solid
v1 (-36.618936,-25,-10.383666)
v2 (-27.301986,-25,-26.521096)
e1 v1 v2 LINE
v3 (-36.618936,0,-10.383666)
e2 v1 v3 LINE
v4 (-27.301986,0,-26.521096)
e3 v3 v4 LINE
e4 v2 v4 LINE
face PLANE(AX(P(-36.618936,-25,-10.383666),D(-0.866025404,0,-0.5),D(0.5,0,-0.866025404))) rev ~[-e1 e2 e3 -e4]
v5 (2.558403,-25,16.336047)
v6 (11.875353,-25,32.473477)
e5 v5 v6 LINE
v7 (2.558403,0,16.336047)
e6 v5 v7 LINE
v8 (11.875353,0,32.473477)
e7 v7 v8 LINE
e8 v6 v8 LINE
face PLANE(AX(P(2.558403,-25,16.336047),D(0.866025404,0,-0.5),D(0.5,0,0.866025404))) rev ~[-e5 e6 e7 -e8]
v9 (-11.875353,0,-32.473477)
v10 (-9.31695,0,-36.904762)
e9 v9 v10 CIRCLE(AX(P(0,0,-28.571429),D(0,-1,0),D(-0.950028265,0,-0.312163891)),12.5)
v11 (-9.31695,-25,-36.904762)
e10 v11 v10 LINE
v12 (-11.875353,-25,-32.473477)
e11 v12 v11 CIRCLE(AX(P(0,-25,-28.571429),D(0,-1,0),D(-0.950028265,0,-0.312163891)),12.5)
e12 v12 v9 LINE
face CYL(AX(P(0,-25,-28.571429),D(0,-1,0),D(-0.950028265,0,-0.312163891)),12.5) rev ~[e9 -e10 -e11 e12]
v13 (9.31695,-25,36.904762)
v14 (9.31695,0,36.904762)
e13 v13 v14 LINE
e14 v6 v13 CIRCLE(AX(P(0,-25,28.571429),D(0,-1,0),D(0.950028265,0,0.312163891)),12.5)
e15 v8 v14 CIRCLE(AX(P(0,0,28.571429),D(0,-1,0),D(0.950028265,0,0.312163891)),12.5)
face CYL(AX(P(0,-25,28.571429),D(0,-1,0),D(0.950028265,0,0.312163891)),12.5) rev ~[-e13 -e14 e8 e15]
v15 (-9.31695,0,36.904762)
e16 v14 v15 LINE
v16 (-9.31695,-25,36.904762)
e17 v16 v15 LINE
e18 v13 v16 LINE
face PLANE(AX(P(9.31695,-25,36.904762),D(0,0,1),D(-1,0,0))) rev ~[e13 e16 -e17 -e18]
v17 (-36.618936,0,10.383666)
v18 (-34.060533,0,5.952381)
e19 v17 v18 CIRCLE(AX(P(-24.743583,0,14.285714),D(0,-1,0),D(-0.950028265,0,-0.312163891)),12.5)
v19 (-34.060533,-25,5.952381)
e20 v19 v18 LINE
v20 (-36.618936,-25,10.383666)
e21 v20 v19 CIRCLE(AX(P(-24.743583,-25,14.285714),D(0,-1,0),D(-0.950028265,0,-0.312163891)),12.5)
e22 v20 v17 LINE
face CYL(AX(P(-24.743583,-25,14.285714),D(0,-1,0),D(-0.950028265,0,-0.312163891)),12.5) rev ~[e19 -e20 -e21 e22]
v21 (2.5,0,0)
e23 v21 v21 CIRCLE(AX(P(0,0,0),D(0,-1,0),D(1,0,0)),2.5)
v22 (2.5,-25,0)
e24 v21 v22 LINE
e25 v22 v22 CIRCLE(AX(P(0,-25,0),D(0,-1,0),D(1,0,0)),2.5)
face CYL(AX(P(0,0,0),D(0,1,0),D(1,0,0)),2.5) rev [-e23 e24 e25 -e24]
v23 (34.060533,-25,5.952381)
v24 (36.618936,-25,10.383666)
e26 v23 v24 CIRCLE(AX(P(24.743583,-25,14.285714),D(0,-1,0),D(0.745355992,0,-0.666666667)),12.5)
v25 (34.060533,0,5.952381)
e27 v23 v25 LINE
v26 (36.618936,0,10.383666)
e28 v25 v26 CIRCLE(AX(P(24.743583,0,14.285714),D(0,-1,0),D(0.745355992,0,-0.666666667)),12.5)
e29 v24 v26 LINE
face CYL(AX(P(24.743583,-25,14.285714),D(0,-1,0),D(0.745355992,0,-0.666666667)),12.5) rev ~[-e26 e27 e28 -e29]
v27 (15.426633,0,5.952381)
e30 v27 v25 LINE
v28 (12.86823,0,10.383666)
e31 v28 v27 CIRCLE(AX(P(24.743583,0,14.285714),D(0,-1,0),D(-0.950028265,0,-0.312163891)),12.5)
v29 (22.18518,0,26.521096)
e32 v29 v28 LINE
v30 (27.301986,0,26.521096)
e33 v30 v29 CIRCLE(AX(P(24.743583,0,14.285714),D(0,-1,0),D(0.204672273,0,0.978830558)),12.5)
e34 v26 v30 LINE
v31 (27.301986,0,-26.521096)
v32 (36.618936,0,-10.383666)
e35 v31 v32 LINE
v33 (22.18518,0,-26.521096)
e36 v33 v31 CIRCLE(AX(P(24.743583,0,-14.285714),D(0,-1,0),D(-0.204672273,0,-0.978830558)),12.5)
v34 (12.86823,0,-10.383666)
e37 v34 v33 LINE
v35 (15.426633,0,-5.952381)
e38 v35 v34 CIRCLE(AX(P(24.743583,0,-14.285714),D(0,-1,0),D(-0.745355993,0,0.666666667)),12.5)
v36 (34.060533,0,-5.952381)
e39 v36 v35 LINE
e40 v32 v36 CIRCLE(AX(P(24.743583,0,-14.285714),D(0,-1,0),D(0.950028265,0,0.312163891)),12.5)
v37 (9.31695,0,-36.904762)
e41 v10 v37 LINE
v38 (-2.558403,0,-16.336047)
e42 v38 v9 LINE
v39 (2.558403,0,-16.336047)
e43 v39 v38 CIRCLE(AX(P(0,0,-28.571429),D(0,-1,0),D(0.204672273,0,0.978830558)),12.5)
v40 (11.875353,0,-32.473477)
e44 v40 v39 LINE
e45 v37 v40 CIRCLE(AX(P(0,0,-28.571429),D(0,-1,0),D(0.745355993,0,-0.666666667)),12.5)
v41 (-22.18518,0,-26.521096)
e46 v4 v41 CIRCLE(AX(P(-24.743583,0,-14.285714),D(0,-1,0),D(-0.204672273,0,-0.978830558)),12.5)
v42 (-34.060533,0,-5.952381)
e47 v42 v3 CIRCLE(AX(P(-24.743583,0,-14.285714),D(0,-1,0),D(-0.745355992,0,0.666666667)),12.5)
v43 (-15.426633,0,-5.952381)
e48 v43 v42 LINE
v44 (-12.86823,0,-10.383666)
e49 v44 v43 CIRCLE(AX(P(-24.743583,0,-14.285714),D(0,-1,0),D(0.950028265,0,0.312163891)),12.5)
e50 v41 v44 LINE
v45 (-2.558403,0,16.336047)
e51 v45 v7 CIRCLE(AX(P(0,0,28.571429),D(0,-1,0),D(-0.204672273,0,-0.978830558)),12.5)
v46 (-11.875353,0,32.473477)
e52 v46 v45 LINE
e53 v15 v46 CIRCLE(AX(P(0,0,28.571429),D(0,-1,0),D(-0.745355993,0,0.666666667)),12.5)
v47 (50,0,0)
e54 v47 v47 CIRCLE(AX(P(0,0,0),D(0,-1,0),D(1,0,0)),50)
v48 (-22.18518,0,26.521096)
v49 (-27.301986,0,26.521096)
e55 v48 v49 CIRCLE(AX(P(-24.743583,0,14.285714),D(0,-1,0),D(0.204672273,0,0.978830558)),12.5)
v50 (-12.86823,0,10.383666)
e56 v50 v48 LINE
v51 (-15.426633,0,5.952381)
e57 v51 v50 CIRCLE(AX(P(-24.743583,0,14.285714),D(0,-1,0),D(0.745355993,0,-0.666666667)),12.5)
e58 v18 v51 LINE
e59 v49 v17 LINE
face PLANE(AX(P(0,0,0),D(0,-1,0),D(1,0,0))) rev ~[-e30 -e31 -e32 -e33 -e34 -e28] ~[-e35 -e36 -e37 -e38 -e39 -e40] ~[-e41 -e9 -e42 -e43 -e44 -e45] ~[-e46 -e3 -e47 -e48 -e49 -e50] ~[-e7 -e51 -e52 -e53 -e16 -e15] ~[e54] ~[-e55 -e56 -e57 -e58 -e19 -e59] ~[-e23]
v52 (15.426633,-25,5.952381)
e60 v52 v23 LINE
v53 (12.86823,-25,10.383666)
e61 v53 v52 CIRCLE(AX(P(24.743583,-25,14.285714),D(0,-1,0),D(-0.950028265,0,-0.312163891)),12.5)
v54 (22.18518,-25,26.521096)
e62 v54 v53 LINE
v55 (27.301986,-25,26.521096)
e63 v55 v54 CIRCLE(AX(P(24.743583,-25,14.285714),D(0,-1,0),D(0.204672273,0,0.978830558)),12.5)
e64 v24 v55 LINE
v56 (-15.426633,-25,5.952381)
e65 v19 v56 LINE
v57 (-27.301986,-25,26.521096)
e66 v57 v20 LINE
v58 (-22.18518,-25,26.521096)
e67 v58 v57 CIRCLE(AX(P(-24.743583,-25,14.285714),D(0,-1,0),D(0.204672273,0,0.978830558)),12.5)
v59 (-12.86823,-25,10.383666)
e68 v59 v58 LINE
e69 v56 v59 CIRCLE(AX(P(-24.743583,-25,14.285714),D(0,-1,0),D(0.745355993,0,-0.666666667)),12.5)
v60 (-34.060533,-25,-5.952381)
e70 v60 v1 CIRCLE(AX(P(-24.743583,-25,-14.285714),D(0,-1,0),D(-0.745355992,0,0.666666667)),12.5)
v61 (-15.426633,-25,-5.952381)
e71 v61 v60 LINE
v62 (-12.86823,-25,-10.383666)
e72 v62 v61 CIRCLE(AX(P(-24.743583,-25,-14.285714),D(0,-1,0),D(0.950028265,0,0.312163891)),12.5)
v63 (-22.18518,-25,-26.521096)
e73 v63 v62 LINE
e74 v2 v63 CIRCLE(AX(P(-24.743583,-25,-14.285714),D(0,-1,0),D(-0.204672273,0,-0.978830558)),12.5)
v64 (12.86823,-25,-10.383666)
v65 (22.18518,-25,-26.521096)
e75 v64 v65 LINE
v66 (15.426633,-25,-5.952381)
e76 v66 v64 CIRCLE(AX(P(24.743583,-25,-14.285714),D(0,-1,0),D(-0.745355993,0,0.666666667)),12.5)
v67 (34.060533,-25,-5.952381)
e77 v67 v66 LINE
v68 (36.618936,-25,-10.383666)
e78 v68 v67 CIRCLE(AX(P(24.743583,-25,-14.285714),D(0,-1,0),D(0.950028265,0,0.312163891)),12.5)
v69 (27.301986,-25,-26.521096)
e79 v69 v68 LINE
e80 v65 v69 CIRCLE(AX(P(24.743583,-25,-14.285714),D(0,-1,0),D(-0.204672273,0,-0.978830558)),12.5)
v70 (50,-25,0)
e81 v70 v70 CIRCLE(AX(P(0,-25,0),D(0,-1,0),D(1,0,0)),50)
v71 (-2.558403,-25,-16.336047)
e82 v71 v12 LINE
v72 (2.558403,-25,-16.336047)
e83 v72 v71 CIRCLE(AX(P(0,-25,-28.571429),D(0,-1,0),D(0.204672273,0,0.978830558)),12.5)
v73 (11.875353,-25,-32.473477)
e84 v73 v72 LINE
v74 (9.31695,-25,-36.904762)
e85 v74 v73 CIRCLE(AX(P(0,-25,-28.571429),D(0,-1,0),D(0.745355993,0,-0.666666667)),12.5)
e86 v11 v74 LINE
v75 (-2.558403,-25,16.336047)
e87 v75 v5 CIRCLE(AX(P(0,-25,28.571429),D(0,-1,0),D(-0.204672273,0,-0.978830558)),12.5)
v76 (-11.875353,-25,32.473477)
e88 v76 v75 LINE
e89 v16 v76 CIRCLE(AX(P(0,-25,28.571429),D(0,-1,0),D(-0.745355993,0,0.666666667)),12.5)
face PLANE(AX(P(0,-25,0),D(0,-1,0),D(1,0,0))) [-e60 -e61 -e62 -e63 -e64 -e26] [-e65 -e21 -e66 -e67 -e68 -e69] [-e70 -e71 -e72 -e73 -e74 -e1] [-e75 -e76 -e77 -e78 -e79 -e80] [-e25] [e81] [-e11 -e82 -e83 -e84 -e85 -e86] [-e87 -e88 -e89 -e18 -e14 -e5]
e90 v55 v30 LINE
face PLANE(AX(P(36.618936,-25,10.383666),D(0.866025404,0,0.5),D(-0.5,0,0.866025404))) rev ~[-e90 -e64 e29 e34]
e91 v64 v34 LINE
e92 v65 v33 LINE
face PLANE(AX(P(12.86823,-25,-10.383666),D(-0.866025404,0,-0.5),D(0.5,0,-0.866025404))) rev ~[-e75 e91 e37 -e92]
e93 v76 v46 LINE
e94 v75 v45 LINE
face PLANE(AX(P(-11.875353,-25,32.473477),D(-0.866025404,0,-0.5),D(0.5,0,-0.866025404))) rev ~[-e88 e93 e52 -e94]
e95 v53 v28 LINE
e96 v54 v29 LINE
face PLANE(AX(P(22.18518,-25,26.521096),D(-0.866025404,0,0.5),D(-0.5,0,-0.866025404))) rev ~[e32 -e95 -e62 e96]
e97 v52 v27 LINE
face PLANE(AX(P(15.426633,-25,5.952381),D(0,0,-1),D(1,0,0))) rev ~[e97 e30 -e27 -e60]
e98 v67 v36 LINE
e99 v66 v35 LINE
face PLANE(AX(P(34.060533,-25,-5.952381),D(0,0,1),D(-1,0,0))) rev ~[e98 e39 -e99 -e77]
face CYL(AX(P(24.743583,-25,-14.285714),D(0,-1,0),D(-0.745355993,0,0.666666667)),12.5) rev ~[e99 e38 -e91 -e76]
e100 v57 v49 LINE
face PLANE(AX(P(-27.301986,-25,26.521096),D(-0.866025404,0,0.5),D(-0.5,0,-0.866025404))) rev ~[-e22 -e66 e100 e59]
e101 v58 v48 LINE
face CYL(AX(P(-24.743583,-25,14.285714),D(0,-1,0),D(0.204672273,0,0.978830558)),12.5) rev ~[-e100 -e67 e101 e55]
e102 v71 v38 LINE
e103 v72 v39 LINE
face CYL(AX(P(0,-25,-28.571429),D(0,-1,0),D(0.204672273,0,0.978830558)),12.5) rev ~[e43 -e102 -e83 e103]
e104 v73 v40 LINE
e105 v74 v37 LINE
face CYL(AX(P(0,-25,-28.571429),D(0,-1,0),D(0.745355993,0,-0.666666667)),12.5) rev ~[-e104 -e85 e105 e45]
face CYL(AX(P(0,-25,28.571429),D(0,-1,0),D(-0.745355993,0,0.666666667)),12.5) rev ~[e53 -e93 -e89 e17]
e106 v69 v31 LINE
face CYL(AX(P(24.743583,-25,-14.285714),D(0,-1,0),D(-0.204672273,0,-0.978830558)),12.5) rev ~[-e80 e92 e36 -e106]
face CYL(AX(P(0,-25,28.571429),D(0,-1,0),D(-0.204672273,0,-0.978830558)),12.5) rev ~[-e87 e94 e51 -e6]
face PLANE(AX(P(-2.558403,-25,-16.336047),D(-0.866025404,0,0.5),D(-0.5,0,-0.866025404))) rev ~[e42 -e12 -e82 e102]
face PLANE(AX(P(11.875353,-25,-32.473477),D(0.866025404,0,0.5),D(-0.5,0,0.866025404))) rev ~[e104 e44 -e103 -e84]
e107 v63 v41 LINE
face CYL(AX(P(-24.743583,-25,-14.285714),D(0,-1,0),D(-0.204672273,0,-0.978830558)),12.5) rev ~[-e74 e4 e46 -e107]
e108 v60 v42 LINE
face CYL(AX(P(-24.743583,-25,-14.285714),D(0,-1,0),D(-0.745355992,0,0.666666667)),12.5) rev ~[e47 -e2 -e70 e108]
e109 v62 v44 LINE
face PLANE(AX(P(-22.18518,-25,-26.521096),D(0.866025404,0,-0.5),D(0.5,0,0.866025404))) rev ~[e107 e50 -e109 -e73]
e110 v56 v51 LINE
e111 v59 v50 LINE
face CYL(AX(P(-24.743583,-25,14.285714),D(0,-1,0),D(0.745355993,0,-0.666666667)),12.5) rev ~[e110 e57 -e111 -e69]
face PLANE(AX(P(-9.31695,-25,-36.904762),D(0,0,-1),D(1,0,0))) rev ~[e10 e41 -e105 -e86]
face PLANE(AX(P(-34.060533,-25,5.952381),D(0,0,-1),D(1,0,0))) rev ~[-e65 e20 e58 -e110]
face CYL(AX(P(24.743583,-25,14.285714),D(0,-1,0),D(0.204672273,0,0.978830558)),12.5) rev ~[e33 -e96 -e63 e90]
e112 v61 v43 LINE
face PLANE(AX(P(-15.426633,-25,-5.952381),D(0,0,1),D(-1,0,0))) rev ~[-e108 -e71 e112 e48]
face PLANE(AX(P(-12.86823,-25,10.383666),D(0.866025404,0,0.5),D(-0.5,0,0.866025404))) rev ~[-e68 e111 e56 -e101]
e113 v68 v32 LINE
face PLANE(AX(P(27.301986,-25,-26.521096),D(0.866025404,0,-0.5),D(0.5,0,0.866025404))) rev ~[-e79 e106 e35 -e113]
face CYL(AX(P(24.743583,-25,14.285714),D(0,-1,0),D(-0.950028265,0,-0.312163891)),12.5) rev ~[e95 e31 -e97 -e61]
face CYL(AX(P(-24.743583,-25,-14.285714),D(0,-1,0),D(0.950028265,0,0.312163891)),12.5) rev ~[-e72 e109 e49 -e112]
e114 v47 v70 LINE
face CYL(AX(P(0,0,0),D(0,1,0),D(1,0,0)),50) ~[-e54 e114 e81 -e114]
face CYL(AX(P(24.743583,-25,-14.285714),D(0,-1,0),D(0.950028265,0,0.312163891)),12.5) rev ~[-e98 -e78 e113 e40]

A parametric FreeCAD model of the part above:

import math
import FreeCAD as App
import Part
import Sketcher
from FreeCAD import Vector
Q = App.Units.Quantity

doc = App.newDocument("Part")
body = doc.addObject("PartDesign::Body", "Body")

# Sketch on XZ plane
sketch1 = body.newObject("Sketcher::SketchObject", "Sketch")
sketch1.AttachmentSupport = (doc.getObject("XZ_Plane"), [""])
sketch1.MapMode = "FlatFace"
sketch1.addGeometry([
    Part.Circle(Vector(0, 0, 0), Vector(0, 0, 1), 50),
    Part.Circle(Vector(0, 0, 0), Vector(0, 0, 1), 2.5),
], False)
sketch1.addConstraint([
    Sketcher.Constraint("Coincident", 0, 3, -1, 1),
    Sketcher.Constraint("Coincident", 1, 3, -1, 1),
    Sketcher.Constraint("Diameter", 0, Q("100 mm")),
    Sketcher.Constraint("Diameter", 1, Q("5 mm")),
])
pad1 = body.newObject("PartDesign::Pad", "Pad")
pad1.Profile = sketch1
pad1.Length = 25

# Sketch on XZ plane
sketch2 = body.newObject("Sketcher::SketchObject", "Sketch001")
sketch2.AttachmentSupport = (doc.getObject("XZ_Plane"), [""])
sketch2.MapMode = "FlatFace"
sketch2.AttachmentOffset = App.Placement(Vector(0, 0, 25), App.Rotation())
sketch2.addGeometry([
    Part.LineSegment(Vector(3, 16, 0), Vector(12, 32, 0)),  # 0
    Part.ArcOfCircle(Part.Circle(Vector(0, 29, 0), Vector(0, 0, 1), 13), math.radians(18), math.radians(42)),  # 1
    Part.LineSegment(Vector(9, 37, 0), Vector(-9, 37, 0)),  # 2
    Part.ArcOfCircle(Part.Circle(Vector(0, 29, 0), Vector(0, 0, 1), 13), math.radians(138), math.radians(162)),  # 3
    Part.LineSegment(Vector(-12, 32, 0), Vector(-3, 16, 0)),  # 4
    Part.ArcOfCircle(Part.Circle(Vector(0, 29, 0), Vector(0, 0, 1), 12), math.radians(-102), math.radians(-78)),  # 5
    Part.LineSegment(Vector(37, 10, 0), Vector(27, 27, 0)),  # 6
    Part.ArcOfCircle(Part.Circle(Vector(25, 14, 0), Vector(0, 0, 1), 13), math.radians(78), math.radians(102)),  # 7
    Part.LineSegment(Vector(22, 27, 0), Vector(13, 10, 0)),  # 8
    Part.ArcOfCircle(Part.Circle(Vector(25, 14, 0), Vector(0, 0, 1), 12), math.radians(-162), math.radians(-138)),  # 9
    Part.LineSegment(Vector(15, 6, 0), Vector(34, 6, 0)),  # 10
    Part.ArcOfCircle(Part.Circle(Vector(25, 14, 0), Vector(0, 0, 1), 12), math.radians(-42), math.radians(-18)),  # 11
    Part.LineSegment(Vector(-27, 27, 0), Vector(-37, 10, 0)),  # 12
    Part.ArcOfCircle(Part.Circle(Vector(-25, 14, 0), Vector(0, 0, 1), 12), math.radians(-162), math.radians(-138)),  # 13
    Part.LineSegment(Vector(-34, 6, 0), Vector(-15, 6, 0)),  # 14
    Part.ArcOfCircle(Part.Circle(Vector(-25, 14, 0), Vector(0, 0, 1), 12), math.radians(-42), math.radians(-18)),  # 15
    Part.LineSegment(Vector(-13, 10, 0), Vector(-22, 27, 0)),  # 16
    Part.ArcOfCircle(Part.Circle(Vector(-25, 14, 0), Vector(0, 0, 1), 13), math.radians(78), math.radians(102)),  # 17
    Part.LineSegment(Vector(-22, -27, 0), Vector(-13, -10, 0)),  # 18
    Part.ArcOfCircle(Part.Circle(Vector(-25, -14, 0), Vector(0, 0, 1), 12), math.radians(18), math.radians(42)),  # 19
    Part.LineSegment(Vector(-15, -6, 0), Vector(-34, -6, 0)),  # 20
    Part.ArcOfCircle(Part.Circle(Vector(-25, -14, 0), Vector(0, 0, 1), 12), math.radians(138), math.radians(162)),  # 21
    Part.LineSegment(Vector(-37, -10, 0), Vector(-27, -27, 0)),  # 22
    Part.ArcOfCircle(Part.Circle(Vector(-25, -14, 0), Vector(0, 0, 1), 13), math.radians(-102), math.radians(-78)),  # 23
    Part.LineSegment(Vector(-9, -37, 0), Vector(9, -37, 0)),  # 24
    Part.ArcOfCircle(Part.Circle(Vector(0, -29, 0), Vector(0, 0, 1), 13), math.radians(-42), math.radians(-18)),  # 25
    Part.LineSegment(Vector(12, -32, 0), Vector(3, -16, 0)),  # 26
    Part.ArcOfCircle(Part.Circle(Vector(0, -29, 0), Vector(0, 0, 1), 12), math.radians(78), math.radians(102)),  # 27
    Part.LineSegment(Vector(-3, -16, 0), Vector(-12, -32, 0)),  # 28
    Part.ArcOfCircle(Part.Circle(Vector(0, -29, 0), Vector(0, 0, 1), 13), math.radians(-162), math.radians(-138)),  # 29
    Part.LineSegment(Vector(34, -6, 0), Vector(15, -6, 0)),  # 30
    Part.ArcOfCircle(Part.Circle(Vector(25, -14, 0), Vector(0, 0, 1), 12), math.radians(138), math.radians(162)),  # 31
    Part.LineSegment(Vector(13, -10, 0), Vector(22, -27, 0)),  # 32
    Part.ArcOfCircle(Part.Circle(Vector(25, -14, 0), Vector(0, 0, 1), 13), math.radians(-102), math.radians(-78)),  # 33
    Part.LineSegment(Vector(27, -27, 0), Vector(37, -10, 0)),  # 34
    Part.ArcOfCircle(Part.Circle(Vector(25, -14, 0), Vector(0, 0, 1), 12), math.radians(18), math.radians(42)),  # 35
], False)
sketch2.addConstraint([
    Sketcher.Constraint("Coincident", 0, 2, 1, 1),
    Sketcher.Constraint("Coincident", 1, 2, 2, 1),
    Sketcher.Constraint("Coincident", 2, 2, 3, 1),
    Sketcher.Constraint("Coincident", 3, 2, 4, 1),
    Sketcher.Constraint("Coincident", 4, 2, 5, 1),
    Sketcher.Constraint("Coincident", 5, 2, 0, 1),
    Sketcher.Constraint("Coincident", 6, 2, 7, 1),
    Sketcher.Constraint("Coincident", 7, 2, 8, 1),
    Sketcher.Constraint("Coincident", 8, 2, 9, 1),
    Sketcher.Constraint("Coincident", 9, 2, 10, 1),
    Sketcher.Constraint("Coincident", 10, 2, 11, 1),
    Sketcher.Constraint("Coincident", 11, 2, 6, 1),
    Sketcher.Constraint("Coincident", 12, 2, 13, 1),
    Sketcher.Constraint("Coincident", 13, 2, 14, 1),
    Sketcher.Constraint("Coincident", 14, 2, 15, 1),
    Sketcher.Constraint("Coincident", 15, 2, 16, 1),
    Sketcher.Constraint("Coincident", 16, 2, 17, 1),
    Sketcher.Constraint("Coincident", 17, 2, 12, 1),
    Sketcher.Constraint("Coincident", 18, 2, 19, 1),
    Sketcher.Constraint("Coincident", 19, 2, 20, 1),
    Sketcher.Constraint("Coincident", 20, 2, 21, 1),
    Sketcher.Constraint("Coincident", 21, 2, 22, 1),
    Sketcher.Constraint("Coincident", 22, 2, 23, 1),
    Sketcher.Constraint("Coincident", 23, 2, 18, 1),
    Sketcher.Constraint("Coincident", 24, 2, 25, 1),
    Sketcher.Constraint("Coincident", 25, 2, 26, 1),
    Sketcher.Constraint("Coincident", 26, 2, 27, 1),
    Sketcher.Constraint("Coincident", 27, 2, 28, 1),
    Sketcher.Constraint("Coincident", 28, 2, 29, 1),
    Sketcher.Constraint("Coincident", 29, 2, 24, 1),
    Sketcher.Constraint("Coincident", 30, 2, 31, 1),
    Sketcher.Constraint("Coincident", 31, 2, 32, 1),
    Sketcher.Constraint("Coincident", 32, 2, 33, 1),
    Sketcher.Constraint("Coincident", 33, 2, 34, 1),
    Sketcher.Constraint("Coincident", 34, 2, 35, 1),
    Sketcher.Constraint("Coincident", 35, 2, 30, 1),
    Sketcher.Constraint("Horizontal", 2),
    Sketcher.Constraint("Horizontal", 10),
    Sketcher.Constraint("Horizontal", 14),
    Sketcher.Constraint("Horizontal", 20),
    Sketcher.Constraint("Horizontal", 24),
    Sketcher.Constraint("Horizontal", 30),
    Sketcher.Constraint("Coincident", 3, 3, 1, 3),
    Sketcher.Constraint("Coincident", 5, 3, 1, 3),
    Sketcher.Constraint("Coincident", 9, 3, 7, 3),
    Sketcher.Constraint("Coincident", 11, 3, 7, 3),
    Sketcher.Constraint("Coincident", 15, 3, 13, 3),
    Sketcher.Constraint("Coincident", 17, 3, 13, 3),
    Sketcher.Constraint("Coincident", 21, 3, 19, 3),
    Sketcher.Constraint("Coincident", 23, 3, 19, 3),
    Sketcher.Constraint("Coincident", 27, 3, 25, 3),
    Sketcher.Constraint("Coincident", 29, 3, 25, 3),
    Sketcher.Constraint("Coincident", 33, 3, 31, 3),
    Sketcher.Constraint("Coincident", 35, 3, 31, 3),
    Sketcher.Constraint("Equal", 1, 3),
    Sketcher.Constraint("Equal", 3, 5),
    Sketcher.Constraint("Equal", 5, 7),
    Sketcher.Constraint("Equal", 7, 9),
    Sketcher.Constraint("Equal", 9, 11),
    Sketcher.Constraint("Equal", 11, 13),
    Sketcher.Constraint("Equal", 13, 15),
    Sketcher.Constraint("Equal", 15, 17),
    Sketcher.Constraint("Equal", 17, 19),
    Sketcher.Constraint("Equal", 19, 21),
    Sketcher.Constraint("Equal", 21, 23),
    Sketcher.Constraint("Equal", 23, 25),
    Sketcher.Constraint("Equal", 25, 27),
    Sketcher.Constraint("Equal", 27, 29),
    Sketcher.Constraint("Equal", 29, 31),
    Sketcher.Constraint("Equal", 31, 33),
    Sketcher.Constraint("Equal", 33, 35),
    Sketcher.Constraint("Symmetric", 7, 3, 19, 3, -1, 1),
    Sketcher.Constraint("Symmetric", 1, 3, 25, 3, -1, 1),
    Sketcher.Constraint("Symmetric", 13, 3, 31, 3, -1, 1),
    Sketcher.Constraint("Symmetric", 7, 3, 13, 3, -2),
    Sketcher.Constraint("Symmetric", 0, 2, 3, 2, -2),
    Sketcher.Constraint("Parallel", 4, 6),
    Sketcher.Constraint("Parallel", 0, 8),
    Sketcher.Constraint("Parallel", 8, 12),
    Sketcher.Constraint("Parallel", 6, 16),
    Sketcher.Constraint("Parallel", 12, 18),
    Sketcher.Constraint("Parallel", 16, 22),
    Sketcher.Constraint("Parallel", 22, 26),
    Sketcher.Constraint("Parallel", 18, 28),
    Sketcher.Constraint("Parallel", 26, 32),
    Sketcher.Constraint("Parallel", 28, 34),
    Sketcher.Constraint("Horizontal", 4, 2, 5, 2),
    Sketcher.Constraint("Horizontal", 6, 2, 7, 2),
    Sketcher.Constraint("Horizontal", 11, 2, 12, 2),
    Sketcher.Constraint("Horizontal", 10, 2, 13, 2),
    Sketcher.Constraint("Horizontal", 12, 2, 15, 2),
    Sketcher.Constraint("Horizontal", 18, 2, 21, 2),
    Sketcher.Constraint("Horizontal", 26, 2, 27, 2),
    Sketcher.Constraint("Horizontal", 20, 2, 30, 2),
    Sketcher.Constraint("Horizontal", 21, 2, 31, 2),
    Sketcher.Constraint("Horizontal", 32, 2, 33, 2),
    Sketcher.Constraint("Vertical", 15, 2, 18, 2),
    Sketcher.Constraint("Vertical", 14, 2, 19, 2),
    Sketcher.Constraint("Vertical", 1, 2, 24, 2),
    Sketcher.Constraint("Vertical", 0, 2, 25, 2),
    Sketcher.Constraint("Equal", 2, 10),
    Sketcher.Constraint("Equal", 4, 6),
    Sketcher.Constraint("Radius", 1, Q("12.5 mm")),
    Sketcher.Constraint("Angle", 0, Q("60 deg")),
    Sketcher.Constraint("DistanceX", 2, 2, 2, 1, Q("18.6339 mm")),
    Sketcher.Constraint("Distance", 0, Q("18.6339 mm")),
    Sketcher.Constraint("DistanceY", -1, 1, 1, 3, Q("28.571429 mm")),
    Sketcher.Constraint("DistanceX", -1, 1, 7, 2, Q("22.18518 mm")),
    Sketcher.Constraint("DistanceY", -1, 1, 9, 2, Q("5.952381 mm")),
])
pocket1 = body.newObject("PartDesign::Pocket", "Pocket")
pocket1.Profile = sketch2
pocket1.Length = 25

doc.recompute()
